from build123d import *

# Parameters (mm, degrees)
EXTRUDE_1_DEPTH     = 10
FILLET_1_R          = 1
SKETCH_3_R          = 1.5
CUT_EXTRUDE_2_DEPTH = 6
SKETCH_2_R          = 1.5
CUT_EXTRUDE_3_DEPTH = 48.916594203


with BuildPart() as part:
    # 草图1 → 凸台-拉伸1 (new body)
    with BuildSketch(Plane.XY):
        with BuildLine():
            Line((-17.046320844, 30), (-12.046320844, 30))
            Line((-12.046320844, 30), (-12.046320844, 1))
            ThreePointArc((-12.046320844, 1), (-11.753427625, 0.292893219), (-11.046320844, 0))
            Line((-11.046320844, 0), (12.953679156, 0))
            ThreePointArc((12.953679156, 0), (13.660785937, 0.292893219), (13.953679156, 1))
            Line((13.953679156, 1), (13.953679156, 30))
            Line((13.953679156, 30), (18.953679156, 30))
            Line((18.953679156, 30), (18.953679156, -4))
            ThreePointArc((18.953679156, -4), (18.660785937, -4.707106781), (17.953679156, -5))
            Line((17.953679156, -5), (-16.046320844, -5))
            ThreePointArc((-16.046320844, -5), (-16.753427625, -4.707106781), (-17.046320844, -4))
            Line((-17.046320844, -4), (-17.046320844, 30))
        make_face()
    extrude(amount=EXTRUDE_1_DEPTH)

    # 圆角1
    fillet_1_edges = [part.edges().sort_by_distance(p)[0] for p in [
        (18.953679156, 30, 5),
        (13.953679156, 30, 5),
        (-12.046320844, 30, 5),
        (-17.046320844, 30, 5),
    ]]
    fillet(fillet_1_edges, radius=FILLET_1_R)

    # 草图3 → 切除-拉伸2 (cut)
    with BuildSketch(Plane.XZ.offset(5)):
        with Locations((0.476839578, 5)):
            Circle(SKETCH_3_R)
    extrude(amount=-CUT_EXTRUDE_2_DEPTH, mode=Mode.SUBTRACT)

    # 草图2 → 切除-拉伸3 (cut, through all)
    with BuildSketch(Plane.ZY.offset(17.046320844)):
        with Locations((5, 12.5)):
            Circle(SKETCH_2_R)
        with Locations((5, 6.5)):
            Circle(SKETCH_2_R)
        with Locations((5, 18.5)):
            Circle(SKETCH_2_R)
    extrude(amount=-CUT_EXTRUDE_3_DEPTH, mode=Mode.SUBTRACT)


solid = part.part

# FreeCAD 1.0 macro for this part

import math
import FreeCAD as App
import Part
import Sketcher
from FreeCAD import Vector
Q = App.Units.Quantity


def edges_at(feature, points):
    """Names of the edges that pass closest to the given points."""
    edges = feature.Shape.Edges
    near = lambda p: min(range(len(edges)), key=lambda i: edges[i].distToShape(Part.Vertex(*p))[0])
    return sorted({f"Edge{near(p) + 1}" for p in points})

doc = App.newDocument("Part")
body = doc.addObject("PartDesign::Body", "Body")

sketch1 = doc.addObject("Sketcher::SketchObject", "Sketch")
body.addObject(sketch1)
sketch1.AttachmentSupport = (doc.XY_Plane, [""])
sketch1.MapMode = "FlatFace"
sketch1.addGeometry(Part.LineSegment(Vector(-12, 30, 0), Vector(-17, 30, 0)), False)
sketch1.addGeometry(Part.LineSegment(Vector(-17, 30, 0), Vector(-17, -4, 0)), False)
sketch1.addGeometry(Part.ArcOfCircle(Part.Circle(Vector(-16, -4, 0), Vector(0, 0, 1), 1), math.radians(-180), math.radians(-90)), False)
sketch1.addGeometry(Part.LineSegment(Vector(-16, -5, 0), Vector(18, -5, 0)), False)
sketch1.addGeometry(Part.ArcOfCircle(Part.Circle(Vector(18, -4, 0), Vector(0, 0, 1), 1), math.radians(-90), math.radians(0)), False)
sketch1.addGeometry(Part.LineSegment(Vector(19, -4, 0), Vector(19, 30, 0)), False)
sketch1.addGeometry(Part.LineSegment(Vector(19, 30, 0), Vector(14, 30, 0)), False)
sketch1.addGeometry(Part.LineSegment(Vector(14, 30, 0), Vector(14, 1, 0)), False)
sketch1.addGeometry(Part.ArcOfCircle(Part.Circle(Vector(13, 1, 0), Vector(0, 0, 1), 1), math.radians(-90), math.radians(0)), False)
sketch1.addGeometry(Part.LineSegment(Vector(13, 0, 0), Vector(-11, 0, 0)), False)
sketch1.addGeometry(Part.ArcOfCircle(Part.Circle(Vector(-11, 1, 0), Vector(0, 0, 1), 1), math.radians(-180), math.radians(-90)), False)
sketch1.addGeometry(Part.LineSegment(Vector(-12, 1, 0), Vector(-12, 30, 0)), False)
sketch1.addConstraint(Sketcher.Constraint("Coincident", 0, 2, 1, 1))
sketch1.addConstraint(Sketcher.Constraint("Tangent", 1, 2, 2, 1))
sketch1.addConstraint(Sketcher.Constraint("Tangent", 2, 2, 3, 1))
sketch1.addConstraint(Sketcher.Constraint("Tangent", 3, 2, 4, 1))
sketch1.addConstraint(Sketcher.Constraint("Tangent", 4, 2, 5, 1))
sketch1.addConstraint(Sketcher.Constraint("Coincident", 5, 2, 6, 1))
sketch1.addConstraint(Sketcher.Constraint("Coincident", 6, 2, 7, 1))
sketch1.addConstraint(Sketcher.Constraint("Tangent", 7, 2, 8, 2))
sketch1.addConstraint(Sketcher.Constraint("Tangent", 8, 1, 9, 1))
sketch1.addConstraint(Sketcher.Constraint("Tangent", 9, 2, 10, 2))
sketch1.addConstraint(Sketcher.Constraint("Tangent", 10, 1, 11, 1))
sketch1.addConstraint(Sketcher.Constraint("Coincident", 11, 2, 0, 1))
sketch1.addConstraint(Sketcher.Constraint("Horizontal", 0))
sketch1.addConstraint(Sketcher.Constraint("Vertical", 1))
sketch1.addConstraint(Sketcher.Constraint("Horizontal", 3))
sketch1.addConstraint(Sketcher.Constraint("Vertical", 5))
sketch1.addConstraint(Sketcher.Constraint("Horizontal", 6))
sketch1.addConstraint(Sketcher.Constraint("Vertical", 7))
sketch1.addConstraint(Sketcher.Constraint("Horizontal", 9))
sketch1.addConstraint(Sketcher.Constraint("Vertical", 11))
sketch1.addConstraint(Sketcher.Constraint("Equal", 2, 4))
sketch1.addConstraint(Sketcher.Constraint("Equal", 4, 8))
sketch1.addConstraint(Sketcher.Constraint("Equal", 8, 10))
sketch1.addConstraint(Sketcher.Constraint("PointOnObject", 8, 1, -1))
sketch1.addConstraint(Sketcher.Constraint("Horizontal", 0, 2, 5, 2))
sketch1.addConstraint(Sketcher.Constraint("Equal", 0, 6))
sketch1.addConstraint(Sketcher.Constraint("Equal", 3, 1))
sketch1.addConstraint(Sketcher.Constraint("Radius", 2, Q("1 mm")))
sketch1.addConstraint(Sketcher.Constraint("DistanceX", 0, 2, 0, 1, Q("5 mm")))
sketch1.addConstraint(Sketcher.Constraint("DistanceX", 3, 1, 3, 2, Q("34 mm")))
sketch1.addConstraint(Sketcher.Constraint("DistanceY", 7, 2, 7, 1, Q("29 mm")))
sketch1.addConstraint(Sketcher.Constraint("DistanceX", 2, 3, -1, 1, Q("16.046321 mm")))
pad1 = doc.addObject("PartDesign::Pad", "Pad")
body.addObject(pad1)
pad1.Profile = sketch1
pad1.Length = 10
doc.recompute()

fillet = doc.addObject("PartDesign::Fillet", "Fillet")
body.addObject(fillet)
fillet.Base = (pad1, edges_at(pad1, [
    (18.954, 30, 5),
    (13.954, 30, 5),
    (-12.046, 30, 5),
    (-17.046, 30, 5),
]))
fillet.Radius = 1

sketch2 = doc.addObject("Sketcher::SketchObject", "Sketch001")
body.addObject(sketch2)
sketch2.AttachmentSupport = (doc.XZ_Plane, [""])
sketch2.MapMode = "FlatFace"
sketch2.AttachmentOffset = App.Placement(Vector(0, 0, 5), App.Rotation())
sketch2.addGeometry(Part.Circle(Vector(0.5, 5, 0), Vector(0, 0, 1), 1.5), False)
sketch2.addConstraint(Sketcher.Constraint("Diameter", 0, Q("3 mm")))
sketch2.addConstraint(Sketcher.Constraint("DistanceY", -1, 1, 0, 3, Q("5 mm")))
sketch2.addConstraint(Sketcher.Constraint("DistanceX", -1, 1, 0, 3, Q("0.47684 mm")))
pocket1 = doc.addObject("PartDesign::Pocket", "Pocket")
body.addObject(pocket1)
pocket1.Profile = sketch2
pocket1.Length = 6

sketch3 = doc.addObject("Sketcher::SketchObject", "Sketch002")
body.addObject(sketch3)
sketch3.AttachmentSupport = (doc.YZ_Plane, [""])
sketch3.MapMode = "FlatFace"
sketch3.AttachmentOffset = App.Placement(Vector(0, 0, -17.046321), App.Rotation())
sketch3.addGeometry(Part.Circle(Vector(12.5, 5, 0), Vector(0, 0, 1), 1.5), False)
sketch3.addGeometry(Part.Circle(Vector(6.5, 5, 0), Vector(0, 0, 1), 1.5), False)
sketch3.addGeometry(Part.Circle(Vector(18.5, 5, 0), Vector(0, 0, 1), 1.5), False)
sketch3.addConstraint(Sketcher.Constraint("Equal", 0, 1))
sketch3.addConstraint(Sketcher.Constraint("Equal", 1, 2))
sketch3.addConstraint(Sketcher.Constraint("Horizontal", 0, 3, 1, 3))
sketch3.addConstraint(Sketcher.Constraint("Horizontal", 1, 3, 2, 3))
sketch3.addConstraint(Sketcher.Constraint("Diameter", 0, Q("3 mm")))
sketch3.addConstraint(Sketcher.Constraint("DistanceY", -1, 1, 0, 3, Q("5 mm")))
sketch3.addConstraint(Sketcher.Constraint("DistanceX", 1, 3, 0, 3, Q("6 mm")))
sketch3.addConstraint(Sketcher.Constraint("DistanceX", 0, 3, 2, 3, Q("6 mm")))
sketch3.addConstraint(Sketcher.Constraint("DistanceX", -1, 1, 0, 3, Q("12.5 mm")))
pocket2 = doc.addObject("PartDesign::Pocket", "Pocket001")
body.addObject(pocket2)
pocket2.Profile = sketch3
pocket2.Type = "ThroughAll"
pocket2.Reversed = True

doc.recompute()
